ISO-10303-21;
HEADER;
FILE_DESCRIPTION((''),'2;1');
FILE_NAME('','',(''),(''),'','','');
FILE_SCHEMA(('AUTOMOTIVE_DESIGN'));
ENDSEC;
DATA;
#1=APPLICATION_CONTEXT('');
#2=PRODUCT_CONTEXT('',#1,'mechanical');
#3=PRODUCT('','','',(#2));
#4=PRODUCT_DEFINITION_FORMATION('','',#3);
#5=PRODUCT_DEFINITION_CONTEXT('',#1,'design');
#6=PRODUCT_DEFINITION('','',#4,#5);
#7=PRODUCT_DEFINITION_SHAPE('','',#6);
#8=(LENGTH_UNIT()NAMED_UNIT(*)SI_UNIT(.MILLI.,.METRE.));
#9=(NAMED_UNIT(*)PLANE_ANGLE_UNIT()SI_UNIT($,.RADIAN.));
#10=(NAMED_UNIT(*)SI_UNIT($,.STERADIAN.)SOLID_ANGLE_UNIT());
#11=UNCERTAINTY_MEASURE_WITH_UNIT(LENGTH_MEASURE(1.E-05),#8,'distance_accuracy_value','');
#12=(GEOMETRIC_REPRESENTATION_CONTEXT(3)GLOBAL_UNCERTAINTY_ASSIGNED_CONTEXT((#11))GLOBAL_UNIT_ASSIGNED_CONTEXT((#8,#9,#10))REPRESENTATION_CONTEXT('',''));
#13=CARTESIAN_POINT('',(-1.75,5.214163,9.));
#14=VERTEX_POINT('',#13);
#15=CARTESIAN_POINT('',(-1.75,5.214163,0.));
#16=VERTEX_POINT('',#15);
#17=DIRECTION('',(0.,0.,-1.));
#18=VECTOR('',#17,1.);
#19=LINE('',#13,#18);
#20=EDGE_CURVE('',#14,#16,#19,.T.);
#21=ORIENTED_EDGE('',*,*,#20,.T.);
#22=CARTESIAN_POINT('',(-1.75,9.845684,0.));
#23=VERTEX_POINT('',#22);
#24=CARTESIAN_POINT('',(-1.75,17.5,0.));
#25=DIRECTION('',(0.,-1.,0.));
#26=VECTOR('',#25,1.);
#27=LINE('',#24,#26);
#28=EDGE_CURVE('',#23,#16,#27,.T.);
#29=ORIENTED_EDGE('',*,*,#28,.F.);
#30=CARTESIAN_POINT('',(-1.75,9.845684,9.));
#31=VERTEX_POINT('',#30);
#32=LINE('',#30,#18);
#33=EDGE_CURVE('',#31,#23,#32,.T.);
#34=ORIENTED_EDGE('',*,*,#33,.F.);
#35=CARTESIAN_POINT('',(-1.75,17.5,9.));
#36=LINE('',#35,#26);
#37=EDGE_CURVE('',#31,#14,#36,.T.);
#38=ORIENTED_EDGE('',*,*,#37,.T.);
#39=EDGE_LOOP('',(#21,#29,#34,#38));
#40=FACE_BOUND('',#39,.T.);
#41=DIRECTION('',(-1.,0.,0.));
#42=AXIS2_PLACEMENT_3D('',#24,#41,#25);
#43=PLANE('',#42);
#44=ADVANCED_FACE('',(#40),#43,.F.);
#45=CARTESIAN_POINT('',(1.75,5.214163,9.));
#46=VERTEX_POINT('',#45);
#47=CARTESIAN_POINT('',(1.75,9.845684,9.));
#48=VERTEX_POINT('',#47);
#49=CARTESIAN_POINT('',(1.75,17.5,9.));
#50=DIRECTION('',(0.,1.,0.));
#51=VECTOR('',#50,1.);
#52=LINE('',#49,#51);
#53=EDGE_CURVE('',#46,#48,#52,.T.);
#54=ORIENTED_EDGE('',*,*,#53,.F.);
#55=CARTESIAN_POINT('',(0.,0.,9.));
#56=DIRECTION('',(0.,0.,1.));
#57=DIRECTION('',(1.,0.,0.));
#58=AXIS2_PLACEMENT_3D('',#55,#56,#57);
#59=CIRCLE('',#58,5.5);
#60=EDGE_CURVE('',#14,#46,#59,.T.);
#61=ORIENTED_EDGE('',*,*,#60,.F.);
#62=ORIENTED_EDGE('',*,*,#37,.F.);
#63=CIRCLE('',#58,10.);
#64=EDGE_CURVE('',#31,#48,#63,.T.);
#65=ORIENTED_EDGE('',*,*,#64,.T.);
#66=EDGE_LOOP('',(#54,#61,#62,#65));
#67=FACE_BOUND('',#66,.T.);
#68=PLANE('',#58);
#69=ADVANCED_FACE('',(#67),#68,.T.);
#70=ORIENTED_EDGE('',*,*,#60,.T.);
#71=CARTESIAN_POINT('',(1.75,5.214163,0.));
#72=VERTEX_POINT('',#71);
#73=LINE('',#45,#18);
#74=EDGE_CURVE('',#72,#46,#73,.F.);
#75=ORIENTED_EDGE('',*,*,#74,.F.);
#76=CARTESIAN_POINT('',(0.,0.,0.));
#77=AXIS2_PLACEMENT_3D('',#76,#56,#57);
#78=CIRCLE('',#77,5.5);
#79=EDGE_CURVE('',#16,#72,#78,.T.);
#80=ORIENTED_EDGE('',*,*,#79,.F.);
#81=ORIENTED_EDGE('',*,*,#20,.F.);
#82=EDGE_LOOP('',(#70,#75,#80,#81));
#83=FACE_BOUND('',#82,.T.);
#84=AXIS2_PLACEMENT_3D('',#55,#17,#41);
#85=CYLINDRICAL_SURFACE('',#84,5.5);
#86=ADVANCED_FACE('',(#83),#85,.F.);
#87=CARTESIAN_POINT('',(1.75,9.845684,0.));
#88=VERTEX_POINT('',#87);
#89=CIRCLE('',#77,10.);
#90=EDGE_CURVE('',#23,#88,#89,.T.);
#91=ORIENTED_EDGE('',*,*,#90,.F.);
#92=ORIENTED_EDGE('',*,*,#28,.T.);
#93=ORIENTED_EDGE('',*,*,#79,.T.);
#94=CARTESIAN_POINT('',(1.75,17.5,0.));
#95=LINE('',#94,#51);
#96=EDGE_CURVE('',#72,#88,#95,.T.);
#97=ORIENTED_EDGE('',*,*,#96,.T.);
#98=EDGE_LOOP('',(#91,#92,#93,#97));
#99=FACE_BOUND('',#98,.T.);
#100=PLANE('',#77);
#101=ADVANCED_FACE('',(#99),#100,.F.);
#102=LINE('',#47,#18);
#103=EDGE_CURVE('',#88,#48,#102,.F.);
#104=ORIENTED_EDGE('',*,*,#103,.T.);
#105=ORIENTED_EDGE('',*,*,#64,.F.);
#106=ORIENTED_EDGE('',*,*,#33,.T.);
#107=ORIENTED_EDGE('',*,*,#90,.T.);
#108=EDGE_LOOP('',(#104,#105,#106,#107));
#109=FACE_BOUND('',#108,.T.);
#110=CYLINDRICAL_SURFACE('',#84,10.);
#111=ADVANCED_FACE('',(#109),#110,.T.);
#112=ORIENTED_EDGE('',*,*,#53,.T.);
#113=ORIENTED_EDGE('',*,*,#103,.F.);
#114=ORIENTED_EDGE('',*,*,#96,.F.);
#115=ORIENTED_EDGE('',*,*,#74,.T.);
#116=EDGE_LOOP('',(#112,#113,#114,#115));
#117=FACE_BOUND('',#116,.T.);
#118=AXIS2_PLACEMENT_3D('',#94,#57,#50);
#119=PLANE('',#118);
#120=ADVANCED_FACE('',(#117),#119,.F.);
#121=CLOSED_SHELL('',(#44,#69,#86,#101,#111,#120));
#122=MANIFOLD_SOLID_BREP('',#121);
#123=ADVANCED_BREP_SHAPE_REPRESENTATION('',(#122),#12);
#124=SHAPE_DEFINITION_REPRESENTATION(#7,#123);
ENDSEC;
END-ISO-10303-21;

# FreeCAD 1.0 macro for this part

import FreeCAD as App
import Part
import Sketcher
from FreeCAD import Vector

doc = App.newDocument("Part")
body = doc.addObject("PartDesign::Body", "Body")

sketch1 = body.newObject("Sketcher::SketchObject", "Sketch")
sketch1.AttachmentSupport = (doc.getObject("XY_Plane"), [""])
sketch1.MapMode = "FlatFace"
sketch1.addGeometry([
    Part.Circle(Vector(0, 0, 0), Vector(0, 0, 1), 10),
    Part.Circle(Vector(0, 0, 0), Vector(0, 0, 1), 6),
], False)
sketch1.addConstraint([
    Sketcher.Constraint("Coincident", 0, 3, -1, 1),
    Sketcher.Constraint("Coincident", 1, 3, -1, 1),
    Sketcher.Constraint("Diameter", 0, 20.0),
    Sketcher.Constraint("Diameter", 1, 11.0),
])
pad1 = body.newObject("PartDesign::Pad", "Pad")
pad1.Profile = sketch1
pad1.Length = 9

sketch2 = body.newObject("Sketcher::SketchObject", "Sketch001")
sketch2.AttachmentSupport = (doc.getObject("XY_Plane"), [""])
sketch2.MapMode = "FlatFace"
sketch2.AttachmentOffset = App.Placement(Vector(0, 0, 9), App.Rotation())
sketch2.addGeometry([
    Part.LineSegment(Vector(-1.8, 17.5, 0), Vector(-1.8, 2.5, 0)),
    Part.LineSegment(Vector(-1.8, 2.5, 0), Vector(1.8, 2.5, 0)),
    Part.LineSegment(Vector(1.8, 2.5, 0), Vector(1.8, 17.5, 0)),
    Part.LineSegment(Vector(1.8, 17.5, 0), Vector(-1.8, 17.5, 0)),
], False)
sketch2.addConstraint([
    Sketcher.Constraint("Coincident", 0, 2, 1, 1),
    Sketcher.Constraint("Coincident", 1, 2, 2, 1),
    Sketcher.Constraint("Coincident", 2, 2, 3, 1),
    Sketcher.Constraint("Coincident", 3, 2, 0, 1),
    Sketcher.Constraint("Vertical", 0),
    Sketcher.Constraint("Horizontal", 1),
    Sketcher.Constraint("Vertical", 2),
    Sketcher.Constraint("Horizontal", 3),
    Sketcher.Constraint("DistanceY", 0, 2, 0, 1, 15.0),
    Sketcher.Constraint("DistanceX", 1, 1, 1, 2, 3.5),
    Sketcher.Constraint("DistanceY", -1, 1, 0, 2, 2.5),
    Sketcher.Constraint("DistanceX", 0, 2, -1, 1, 1.75),
])
pocket1 = body.newObject("PartDesign::Pocket", "Pocket")
pocket1.Profile = sketch2
pocket1.Type = "ThroughAll"

doc.recompute()
